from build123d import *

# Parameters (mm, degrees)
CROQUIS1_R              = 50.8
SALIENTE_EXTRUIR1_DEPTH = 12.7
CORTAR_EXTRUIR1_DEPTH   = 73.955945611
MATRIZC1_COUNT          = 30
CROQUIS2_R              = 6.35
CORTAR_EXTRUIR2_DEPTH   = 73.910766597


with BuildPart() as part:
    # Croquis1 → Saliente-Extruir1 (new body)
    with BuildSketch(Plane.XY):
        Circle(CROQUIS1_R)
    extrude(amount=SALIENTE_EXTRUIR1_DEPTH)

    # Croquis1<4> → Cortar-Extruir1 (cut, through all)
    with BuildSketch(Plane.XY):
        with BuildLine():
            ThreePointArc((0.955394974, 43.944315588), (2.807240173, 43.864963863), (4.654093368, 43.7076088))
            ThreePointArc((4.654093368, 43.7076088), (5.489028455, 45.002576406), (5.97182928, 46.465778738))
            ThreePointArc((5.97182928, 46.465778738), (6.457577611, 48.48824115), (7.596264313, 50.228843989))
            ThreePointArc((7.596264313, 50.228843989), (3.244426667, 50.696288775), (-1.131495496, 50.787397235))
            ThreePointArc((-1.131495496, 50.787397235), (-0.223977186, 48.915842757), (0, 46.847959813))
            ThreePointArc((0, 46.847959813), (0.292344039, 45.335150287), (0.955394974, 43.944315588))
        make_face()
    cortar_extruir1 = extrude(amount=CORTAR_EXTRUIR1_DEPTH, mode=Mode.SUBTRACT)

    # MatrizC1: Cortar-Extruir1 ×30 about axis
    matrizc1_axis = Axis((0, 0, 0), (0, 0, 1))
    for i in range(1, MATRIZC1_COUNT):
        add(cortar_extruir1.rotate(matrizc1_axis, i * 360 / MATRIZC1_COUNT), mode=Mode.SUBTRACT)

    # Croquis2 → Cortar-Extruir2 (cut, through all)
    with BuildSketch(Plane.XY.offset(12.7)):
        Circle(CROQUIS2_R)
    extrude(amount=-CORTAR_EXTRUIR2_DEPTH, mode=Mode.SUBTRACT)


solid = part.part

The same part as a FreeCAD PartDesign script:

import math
import FreeCAD as App
import Part
import Sketcher
Q = App.Units.Quantity

doc = App.newDocument("Part")
params = doc.addObject("Spreadsheet::Sheet", "Params")
for row, (alias, value) in enumerate([
    ("sketch1_diameter", "4 in"),
    ("pad1_length", "0.5 in"),
    ("sketch2_radius", "2 in"),
    ("sketch3_diameter", "0.5 in"),
], start=1):
    params.set(f"A{row}", alias)
    params.set(f"B{row}", "=" + value)
    params.setAlias(f"B{row}", alias)

body = doc.addObject("PartDesign::Body", "Body")

sketch1 = doc.addObject("Sketcher::SketchObject", "Sketch")
body.addObject(sketch1)
sketch1.AttachmentSupport = (doc.XY_Plane, [""])
sketch1.MapMode = "FlatFace"
sketch1.addGeometry(Part.Circle(App.Vector(0, 0, 0), App.Vector(0, 0, 1), 50.8), False)
sketch1.addConstraint(Sketcher.Constraint("Coincident", 0, 3, -1, 1))
sketch1.addConstraint(Sketcher.Constraint("Diameter", 0, Q("4 in")))
sketch1.setExpression("Constraints[1]", "Params.sketch1_diameter")
pad1 = doc.addObject("PartDesign::Pad", "Pad")
body.addObject(pad1)
pad1.Profile = sketch1
pad1.setExpression("Length", "Params.pad1_length")

sketch2 = doc.addObject("Sketcher::SketchObject", "Sketch001")
body.addObject(sketch2)
sketch2.AttachmentSupport = (doc.XY_Plane, [""])
sketch2.MapMode = "FlatFace"
sketch2.addGeometry(Part.ArcOfCircle(Part.Circle(App.Vector(0, 0, 0), App.Vector(0, 0, 1), 43.9547), math.radians(83.921908), math.radians(88.754527)), False)
sketch2.addGeometry(Part.ArcOfCircle(Part.Circle(App.Vector(0, 47.625, 0), App.Vector(0, 0, 1), 6.0833), math.radians(-40.087613), math.radians(-10.985348)), False)
sketch2.addGeometry(Part.ArcOfCircle(Part.Circle(App.Vector(12.04271, 46.077259, 0), App.Vector(0, 0, 1), 6.0833), math.radians(136.964127), math.radians(176.338217)), False)
sketch2.addGeometry(Part.ArcOfCircle(Part.Circle(App.Vector(0, 0, 0), App.Vector(0, 0, 1), 50.8), math.radians(81.40015), math.radians(91.276285)), False)
sketch2.addGeometry(Part.ArcOfCircle(Part.Circle(App.Vector(-6.070881, 47.23648, 0), App.Vector(0, 0, 1), 6.0833), math.radians(-3.661783), math.radians(35.712307)), False)
sketch2.addGeometry(Part.ArcOfCircle(Part.Circle(App.Vector(6.070881, 47.23648, 0), App.Vector(0, 0, 1), 6.0833), math.radians(-176.338217), math.radians(-147.235952)), False)
sketch2.addConstraint(Sketcher.Constraint("Coincident", 0, 1, 1, 1))
sketch2.addConstraint(Sketcher.Constraint("Coincident", 1, 2, 2, 2))
sketch2.addConstraint(Sketcher.Constraint("Coincident", 2, 1, 3, 1))
sketch2.addConstraint(Sketcher.Constraint("Coincident", 3, 2, 4, 2))
sketch2.addConstraint(Sketcher.Constraint("Coincident", 4, 1, 5, 1))
sketch2.addConstraint(Sketcher.Constraint("Coincident", 5, 2, 0, 2))
sketch2.addConstraint(Sketcher.Constraint("Coincident", 0, 3, -1, 1))
sketch2.addConstraint(Sketcher.Constraint("Coincident", 3, 3, -1, 1))
sketch2.addConstraint(Sketcher.Constraint("Equal", 1, 2))
sketch2.addConstraint(Sketcher.Constraint("Equal", 2, 4))
sketch2.addConstraint(Sketcher.Constraint("Equal", 4, 5))
sketch2.addConstraint(Sketcher.Constraint("Symmetric", 4, 3, 5, 3, -2))
sketch2.addConstraint(Sketcher.Constraint("PointOnObject", 1, 3, -2))
sketch2.addConstraint(Sketcher.Constraint("Radius", 3, Q("2 in")))
sketch2.addConstraint(Sketcher.Constraint("Radius", 0, Q("1.7305 in")))
sketch2.addConstraint(Sketcher.Constraint("Radius", 1, Q("0.2395 in")))
sketch2.addConstraint(Sketcher.Constraint("DistanceY", -1, 1, 1, 3, Q("1.875 in")))
sketch2.addConstraint(Sketcher.Constraint("DistanceY", 4, 3, 3, 2, Q("0.1397999 in")))
sketch2.addConstraint(Sketcher.Constraint("DistanceY", 1, 2, 5, 3, 0.770701))
sketch2.addConstraint(Sketcher.Constraint("DistanceX", 5, 2, 0, 1, 3.698698))
sketch2.addConstraint(Sketcher.Constraint("DistanceX", -1, 1, 2, 3, 12.04271))
sketch2.setExpression("Constraints[13]", "Params.sketch2_radius")
pocket1 = doc.addObject("PartDesign::Pocket", "Pocket")
body.addObject(pocket1)
pocket1.Profile = sketch2
pocket1.Type = "ThroughAll"
pocket1.Reversed = True
doc.recompute()

polarpattern = doc.addObject("PartDesign::PolarPattern", "PolarPattern")
body.addObject(polarpattern)
polarpattern.Originals = [pocket1]
polarpattern.Axis = (doc.Z_Axis, [""])
polarpattern.Angle = 360
polarpattern.Occurrences = 30
body.Tip = polarpattern

sketch3 = doc.addObject("Sketcher::SketchObject", "Sketch002")
body.addObject(sketch3)
sketch3.AttachmentSupport = (doc.XY_Plane, [""])
sketch3.MapMode = "FlatFace"
sketch3.AttachmentOffset = App.Placement(App.Vector(0, 0, 0.5 * 25.4), App.Rotation())
sketch3.addGeometry(Part.Circle(App.Vector(0, 0, 0), App.Vector(0, 0, 1), 6.35), False)
sketch3.addConstraint(Sketcher.Constraint("Coincident", 0, 3, -1, 1))
sketch3.addConstraint(Sketcher.Constraint("Diameter", 0, Q("0.5 in")))
sketch3.setExpression("Constraints[1]", "Params.sketch3_diameter")
pocket2 = doc.addObject("PartDesign::Pocket", "Pocket001")
body.addObject(pocket2)
pocket2.Profile = sketch3
pocket2.Type = "ThroughAll"

doc.recompute()
